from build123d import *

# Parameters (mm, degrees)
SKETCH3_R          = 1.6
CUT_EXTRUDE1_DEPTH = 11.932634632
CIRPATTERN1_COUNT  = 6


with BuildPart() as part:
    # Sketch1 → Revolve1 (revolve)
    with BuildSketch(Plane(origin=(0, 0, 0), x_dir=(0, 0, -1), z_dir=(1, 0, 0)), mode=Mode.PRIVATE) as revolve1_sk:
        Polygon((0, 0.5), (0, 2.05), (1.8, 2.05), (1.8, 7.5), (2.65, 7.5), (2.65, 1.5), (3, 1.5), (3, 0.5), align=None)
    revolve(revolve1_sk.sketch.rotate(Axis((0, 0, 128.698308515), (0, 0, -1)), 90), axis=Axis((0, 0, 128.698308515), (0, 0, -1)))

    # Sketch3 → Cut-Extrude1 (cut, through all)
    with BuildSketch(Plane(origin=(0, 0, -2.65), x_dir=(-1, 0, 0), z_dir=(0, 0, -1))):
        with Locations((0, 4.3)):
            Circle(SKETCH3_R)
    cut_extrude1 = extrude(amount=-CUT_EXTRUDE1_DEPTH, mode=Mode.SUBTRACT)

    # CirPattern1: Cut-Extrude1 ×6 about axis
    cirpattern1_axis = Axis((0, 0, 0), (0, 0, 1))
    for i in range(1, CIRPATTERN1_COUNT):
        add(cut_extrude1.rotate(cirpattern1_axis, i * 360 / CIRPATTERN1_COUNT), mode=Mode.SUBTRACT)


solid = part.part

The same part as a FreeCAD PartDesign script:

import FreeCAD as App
import Part
import Sketcher
Q = App.Units.Quantity

doc = App.newDocument("Part")
body = doc.addObject("PartDesign::Body", "Body")

# Sketch on YZ plane
sketch1 = body.newObject("Sketcher::SketchObject", "Sketch")
sketch1.AttachmentSupport = (doc.getObject("YZ_Plane"), [""])
sketch1.MapMode = "FlatFace"
sketch1.addGeometry([
    Part.LineSegment(App.Vector(2.05, 0, 0), App.Vector(0.5, 0, 0)),  # 0
    Part.LineSegment(App.Vector(0.5, 0, 0), App.Vector(0.5, -3, 0)),  # 1
    Part.LineSegment(App.Vector(0.5, -3, 0), App.Vector(1.5, -3, 0)),  # 2
    Part.LineSegment(App.Vector(1.5, -3, 0), App.Vector(1.5, -2.65, 0)),  # 3
    Part.LineSegment(App.Vector(1.5, -2.65, 0), App.Vector(7.5, -2.65, 0)),  # 4
    Part.LineSegment(App.Vector(7.5, -2.65, 0), App.Vector(7.5, -1.8, 0)),  # 5
    Part.LineSegment(App.Vector(7.5, -1.8, 0), App.Vector(2.05, -1.8, 0)),  # 6
    Part.LineSegment(App.Vector(2.05, -1.8, 0), App.Vector(2.05, 0, 0)),  # 7
], False)
sketch1.addConstraint([
    Sketcher.Constraint("Coincident", 0, 2, 1, 1),
    Sketcher.Constraint("Coincident", 1, 2, 2, 1),
    Sketcher.Constraint("Coincident", 2, 2, 3, 1),
    Sketcher.Constraint("Coincident", 3, 2, 4, 1),
    Sketcher.Constraint("Coincident", 4, 2, 5, 1),
    Sketcher.Constraint("Coincident", 5, 2, 6, 1),
    Sketcher.Constraint("Coincident", 6, 2, 7, 1),
    Sketcher.Constraint("Coincident", 7, 2, 0, 1),
    Sketcher.Constraint("Horizontal", 0),
    Sketcher.Constraint("Vertical", 1),
    Sketcher.Constraint("Horizontal", 2),
    Sketcher.Constraint("Vertical", 3),
    Sketcher.Constraint("Horizontal", 4),
    Sketcher.Constraint("Vertical", 5),
    Sketcher.Constraint("Horizontal", 6),
    Sketcher.Constraint("Vertical", 7),
    Sketcher.Constraint("PointOnObject", 0, 2, -1),
    Sketcher.Constraint("DistanceX", 2, 1, 2, 2, Q("1 mm")),
    Sketcher.Constraint("DistanceX", 4, 1, 4, 2, Q("6 mm")),
    Sketcher.Constraint("DistanceY", 1, 2, 1, 1, Q("3 mm")),
    Sketcher.Constraint("DistanceY", 7, 1, 7, 2, Q("1.8 mm")),
    Sketcher.Constraint("DistanceX", 0, 2, 0, 1, Q("1.55 mm")),
    Sketcher.Constraint("DistanceY", 3, 1, 3, 2, Q("0.35 mm")),
    Sketcher.Constraint("DistanceX", -1, 1, 0, 2, Q("0.5 mm")),
])
revolution = body.newObject("PartDesign::Revolution", "Revolution")
revolution.Profile = sketch1
revolution.ReferenceAxis = (sketch1, ["V_Axis"])
revolution.Angle = 360

# Sketch on XY plane
sketch2 = body.newObject("Sketcher::SketchObject", "Sketch001")
sketch2.AttachmentSupport = (doc.getObject("XY_Plane"), [""])
sketch2.MapMode = "FlatFace"
sketch2.AttachmentOffset = App.Placement(App.Vector(0, 0, -2.65), App.Rotation())
sketch2.addGeometry(Part.Circle(App.Vector(0, 4.3, 0), App.Vector(0, 0, 1), 1.6), False)
sketch2.addConstraint([
    Sketcher.Constraint("PointOnObject", 0, 3, -2),
    Sketcher.Constraint("Diameter", 0, Q("3.2 mm")),
    Sketcher.Constraint("DistanceY", -1, 1, 0, 3, Q("4.3 mm")),
])
pocket1 = body.newObject("PartDesign::Pocket", "Pocket")
pocket1.Profile = sketch2
pocket1.Type = "ThroughAll"
pocket1.Reversed = True
doc.recompute()

polarpattern = body.newObject("PartDesign::PolarPattern", "PolarPattern")
polarpattern.Originals = [pocket1]
polarpattern.Axis = (doc.getObject("Z_Axis"), [""])
polarpattern.Angle = 360
polarpattern.Occurrences = 6
body.Tip = polarpattern

doc.recompute()
